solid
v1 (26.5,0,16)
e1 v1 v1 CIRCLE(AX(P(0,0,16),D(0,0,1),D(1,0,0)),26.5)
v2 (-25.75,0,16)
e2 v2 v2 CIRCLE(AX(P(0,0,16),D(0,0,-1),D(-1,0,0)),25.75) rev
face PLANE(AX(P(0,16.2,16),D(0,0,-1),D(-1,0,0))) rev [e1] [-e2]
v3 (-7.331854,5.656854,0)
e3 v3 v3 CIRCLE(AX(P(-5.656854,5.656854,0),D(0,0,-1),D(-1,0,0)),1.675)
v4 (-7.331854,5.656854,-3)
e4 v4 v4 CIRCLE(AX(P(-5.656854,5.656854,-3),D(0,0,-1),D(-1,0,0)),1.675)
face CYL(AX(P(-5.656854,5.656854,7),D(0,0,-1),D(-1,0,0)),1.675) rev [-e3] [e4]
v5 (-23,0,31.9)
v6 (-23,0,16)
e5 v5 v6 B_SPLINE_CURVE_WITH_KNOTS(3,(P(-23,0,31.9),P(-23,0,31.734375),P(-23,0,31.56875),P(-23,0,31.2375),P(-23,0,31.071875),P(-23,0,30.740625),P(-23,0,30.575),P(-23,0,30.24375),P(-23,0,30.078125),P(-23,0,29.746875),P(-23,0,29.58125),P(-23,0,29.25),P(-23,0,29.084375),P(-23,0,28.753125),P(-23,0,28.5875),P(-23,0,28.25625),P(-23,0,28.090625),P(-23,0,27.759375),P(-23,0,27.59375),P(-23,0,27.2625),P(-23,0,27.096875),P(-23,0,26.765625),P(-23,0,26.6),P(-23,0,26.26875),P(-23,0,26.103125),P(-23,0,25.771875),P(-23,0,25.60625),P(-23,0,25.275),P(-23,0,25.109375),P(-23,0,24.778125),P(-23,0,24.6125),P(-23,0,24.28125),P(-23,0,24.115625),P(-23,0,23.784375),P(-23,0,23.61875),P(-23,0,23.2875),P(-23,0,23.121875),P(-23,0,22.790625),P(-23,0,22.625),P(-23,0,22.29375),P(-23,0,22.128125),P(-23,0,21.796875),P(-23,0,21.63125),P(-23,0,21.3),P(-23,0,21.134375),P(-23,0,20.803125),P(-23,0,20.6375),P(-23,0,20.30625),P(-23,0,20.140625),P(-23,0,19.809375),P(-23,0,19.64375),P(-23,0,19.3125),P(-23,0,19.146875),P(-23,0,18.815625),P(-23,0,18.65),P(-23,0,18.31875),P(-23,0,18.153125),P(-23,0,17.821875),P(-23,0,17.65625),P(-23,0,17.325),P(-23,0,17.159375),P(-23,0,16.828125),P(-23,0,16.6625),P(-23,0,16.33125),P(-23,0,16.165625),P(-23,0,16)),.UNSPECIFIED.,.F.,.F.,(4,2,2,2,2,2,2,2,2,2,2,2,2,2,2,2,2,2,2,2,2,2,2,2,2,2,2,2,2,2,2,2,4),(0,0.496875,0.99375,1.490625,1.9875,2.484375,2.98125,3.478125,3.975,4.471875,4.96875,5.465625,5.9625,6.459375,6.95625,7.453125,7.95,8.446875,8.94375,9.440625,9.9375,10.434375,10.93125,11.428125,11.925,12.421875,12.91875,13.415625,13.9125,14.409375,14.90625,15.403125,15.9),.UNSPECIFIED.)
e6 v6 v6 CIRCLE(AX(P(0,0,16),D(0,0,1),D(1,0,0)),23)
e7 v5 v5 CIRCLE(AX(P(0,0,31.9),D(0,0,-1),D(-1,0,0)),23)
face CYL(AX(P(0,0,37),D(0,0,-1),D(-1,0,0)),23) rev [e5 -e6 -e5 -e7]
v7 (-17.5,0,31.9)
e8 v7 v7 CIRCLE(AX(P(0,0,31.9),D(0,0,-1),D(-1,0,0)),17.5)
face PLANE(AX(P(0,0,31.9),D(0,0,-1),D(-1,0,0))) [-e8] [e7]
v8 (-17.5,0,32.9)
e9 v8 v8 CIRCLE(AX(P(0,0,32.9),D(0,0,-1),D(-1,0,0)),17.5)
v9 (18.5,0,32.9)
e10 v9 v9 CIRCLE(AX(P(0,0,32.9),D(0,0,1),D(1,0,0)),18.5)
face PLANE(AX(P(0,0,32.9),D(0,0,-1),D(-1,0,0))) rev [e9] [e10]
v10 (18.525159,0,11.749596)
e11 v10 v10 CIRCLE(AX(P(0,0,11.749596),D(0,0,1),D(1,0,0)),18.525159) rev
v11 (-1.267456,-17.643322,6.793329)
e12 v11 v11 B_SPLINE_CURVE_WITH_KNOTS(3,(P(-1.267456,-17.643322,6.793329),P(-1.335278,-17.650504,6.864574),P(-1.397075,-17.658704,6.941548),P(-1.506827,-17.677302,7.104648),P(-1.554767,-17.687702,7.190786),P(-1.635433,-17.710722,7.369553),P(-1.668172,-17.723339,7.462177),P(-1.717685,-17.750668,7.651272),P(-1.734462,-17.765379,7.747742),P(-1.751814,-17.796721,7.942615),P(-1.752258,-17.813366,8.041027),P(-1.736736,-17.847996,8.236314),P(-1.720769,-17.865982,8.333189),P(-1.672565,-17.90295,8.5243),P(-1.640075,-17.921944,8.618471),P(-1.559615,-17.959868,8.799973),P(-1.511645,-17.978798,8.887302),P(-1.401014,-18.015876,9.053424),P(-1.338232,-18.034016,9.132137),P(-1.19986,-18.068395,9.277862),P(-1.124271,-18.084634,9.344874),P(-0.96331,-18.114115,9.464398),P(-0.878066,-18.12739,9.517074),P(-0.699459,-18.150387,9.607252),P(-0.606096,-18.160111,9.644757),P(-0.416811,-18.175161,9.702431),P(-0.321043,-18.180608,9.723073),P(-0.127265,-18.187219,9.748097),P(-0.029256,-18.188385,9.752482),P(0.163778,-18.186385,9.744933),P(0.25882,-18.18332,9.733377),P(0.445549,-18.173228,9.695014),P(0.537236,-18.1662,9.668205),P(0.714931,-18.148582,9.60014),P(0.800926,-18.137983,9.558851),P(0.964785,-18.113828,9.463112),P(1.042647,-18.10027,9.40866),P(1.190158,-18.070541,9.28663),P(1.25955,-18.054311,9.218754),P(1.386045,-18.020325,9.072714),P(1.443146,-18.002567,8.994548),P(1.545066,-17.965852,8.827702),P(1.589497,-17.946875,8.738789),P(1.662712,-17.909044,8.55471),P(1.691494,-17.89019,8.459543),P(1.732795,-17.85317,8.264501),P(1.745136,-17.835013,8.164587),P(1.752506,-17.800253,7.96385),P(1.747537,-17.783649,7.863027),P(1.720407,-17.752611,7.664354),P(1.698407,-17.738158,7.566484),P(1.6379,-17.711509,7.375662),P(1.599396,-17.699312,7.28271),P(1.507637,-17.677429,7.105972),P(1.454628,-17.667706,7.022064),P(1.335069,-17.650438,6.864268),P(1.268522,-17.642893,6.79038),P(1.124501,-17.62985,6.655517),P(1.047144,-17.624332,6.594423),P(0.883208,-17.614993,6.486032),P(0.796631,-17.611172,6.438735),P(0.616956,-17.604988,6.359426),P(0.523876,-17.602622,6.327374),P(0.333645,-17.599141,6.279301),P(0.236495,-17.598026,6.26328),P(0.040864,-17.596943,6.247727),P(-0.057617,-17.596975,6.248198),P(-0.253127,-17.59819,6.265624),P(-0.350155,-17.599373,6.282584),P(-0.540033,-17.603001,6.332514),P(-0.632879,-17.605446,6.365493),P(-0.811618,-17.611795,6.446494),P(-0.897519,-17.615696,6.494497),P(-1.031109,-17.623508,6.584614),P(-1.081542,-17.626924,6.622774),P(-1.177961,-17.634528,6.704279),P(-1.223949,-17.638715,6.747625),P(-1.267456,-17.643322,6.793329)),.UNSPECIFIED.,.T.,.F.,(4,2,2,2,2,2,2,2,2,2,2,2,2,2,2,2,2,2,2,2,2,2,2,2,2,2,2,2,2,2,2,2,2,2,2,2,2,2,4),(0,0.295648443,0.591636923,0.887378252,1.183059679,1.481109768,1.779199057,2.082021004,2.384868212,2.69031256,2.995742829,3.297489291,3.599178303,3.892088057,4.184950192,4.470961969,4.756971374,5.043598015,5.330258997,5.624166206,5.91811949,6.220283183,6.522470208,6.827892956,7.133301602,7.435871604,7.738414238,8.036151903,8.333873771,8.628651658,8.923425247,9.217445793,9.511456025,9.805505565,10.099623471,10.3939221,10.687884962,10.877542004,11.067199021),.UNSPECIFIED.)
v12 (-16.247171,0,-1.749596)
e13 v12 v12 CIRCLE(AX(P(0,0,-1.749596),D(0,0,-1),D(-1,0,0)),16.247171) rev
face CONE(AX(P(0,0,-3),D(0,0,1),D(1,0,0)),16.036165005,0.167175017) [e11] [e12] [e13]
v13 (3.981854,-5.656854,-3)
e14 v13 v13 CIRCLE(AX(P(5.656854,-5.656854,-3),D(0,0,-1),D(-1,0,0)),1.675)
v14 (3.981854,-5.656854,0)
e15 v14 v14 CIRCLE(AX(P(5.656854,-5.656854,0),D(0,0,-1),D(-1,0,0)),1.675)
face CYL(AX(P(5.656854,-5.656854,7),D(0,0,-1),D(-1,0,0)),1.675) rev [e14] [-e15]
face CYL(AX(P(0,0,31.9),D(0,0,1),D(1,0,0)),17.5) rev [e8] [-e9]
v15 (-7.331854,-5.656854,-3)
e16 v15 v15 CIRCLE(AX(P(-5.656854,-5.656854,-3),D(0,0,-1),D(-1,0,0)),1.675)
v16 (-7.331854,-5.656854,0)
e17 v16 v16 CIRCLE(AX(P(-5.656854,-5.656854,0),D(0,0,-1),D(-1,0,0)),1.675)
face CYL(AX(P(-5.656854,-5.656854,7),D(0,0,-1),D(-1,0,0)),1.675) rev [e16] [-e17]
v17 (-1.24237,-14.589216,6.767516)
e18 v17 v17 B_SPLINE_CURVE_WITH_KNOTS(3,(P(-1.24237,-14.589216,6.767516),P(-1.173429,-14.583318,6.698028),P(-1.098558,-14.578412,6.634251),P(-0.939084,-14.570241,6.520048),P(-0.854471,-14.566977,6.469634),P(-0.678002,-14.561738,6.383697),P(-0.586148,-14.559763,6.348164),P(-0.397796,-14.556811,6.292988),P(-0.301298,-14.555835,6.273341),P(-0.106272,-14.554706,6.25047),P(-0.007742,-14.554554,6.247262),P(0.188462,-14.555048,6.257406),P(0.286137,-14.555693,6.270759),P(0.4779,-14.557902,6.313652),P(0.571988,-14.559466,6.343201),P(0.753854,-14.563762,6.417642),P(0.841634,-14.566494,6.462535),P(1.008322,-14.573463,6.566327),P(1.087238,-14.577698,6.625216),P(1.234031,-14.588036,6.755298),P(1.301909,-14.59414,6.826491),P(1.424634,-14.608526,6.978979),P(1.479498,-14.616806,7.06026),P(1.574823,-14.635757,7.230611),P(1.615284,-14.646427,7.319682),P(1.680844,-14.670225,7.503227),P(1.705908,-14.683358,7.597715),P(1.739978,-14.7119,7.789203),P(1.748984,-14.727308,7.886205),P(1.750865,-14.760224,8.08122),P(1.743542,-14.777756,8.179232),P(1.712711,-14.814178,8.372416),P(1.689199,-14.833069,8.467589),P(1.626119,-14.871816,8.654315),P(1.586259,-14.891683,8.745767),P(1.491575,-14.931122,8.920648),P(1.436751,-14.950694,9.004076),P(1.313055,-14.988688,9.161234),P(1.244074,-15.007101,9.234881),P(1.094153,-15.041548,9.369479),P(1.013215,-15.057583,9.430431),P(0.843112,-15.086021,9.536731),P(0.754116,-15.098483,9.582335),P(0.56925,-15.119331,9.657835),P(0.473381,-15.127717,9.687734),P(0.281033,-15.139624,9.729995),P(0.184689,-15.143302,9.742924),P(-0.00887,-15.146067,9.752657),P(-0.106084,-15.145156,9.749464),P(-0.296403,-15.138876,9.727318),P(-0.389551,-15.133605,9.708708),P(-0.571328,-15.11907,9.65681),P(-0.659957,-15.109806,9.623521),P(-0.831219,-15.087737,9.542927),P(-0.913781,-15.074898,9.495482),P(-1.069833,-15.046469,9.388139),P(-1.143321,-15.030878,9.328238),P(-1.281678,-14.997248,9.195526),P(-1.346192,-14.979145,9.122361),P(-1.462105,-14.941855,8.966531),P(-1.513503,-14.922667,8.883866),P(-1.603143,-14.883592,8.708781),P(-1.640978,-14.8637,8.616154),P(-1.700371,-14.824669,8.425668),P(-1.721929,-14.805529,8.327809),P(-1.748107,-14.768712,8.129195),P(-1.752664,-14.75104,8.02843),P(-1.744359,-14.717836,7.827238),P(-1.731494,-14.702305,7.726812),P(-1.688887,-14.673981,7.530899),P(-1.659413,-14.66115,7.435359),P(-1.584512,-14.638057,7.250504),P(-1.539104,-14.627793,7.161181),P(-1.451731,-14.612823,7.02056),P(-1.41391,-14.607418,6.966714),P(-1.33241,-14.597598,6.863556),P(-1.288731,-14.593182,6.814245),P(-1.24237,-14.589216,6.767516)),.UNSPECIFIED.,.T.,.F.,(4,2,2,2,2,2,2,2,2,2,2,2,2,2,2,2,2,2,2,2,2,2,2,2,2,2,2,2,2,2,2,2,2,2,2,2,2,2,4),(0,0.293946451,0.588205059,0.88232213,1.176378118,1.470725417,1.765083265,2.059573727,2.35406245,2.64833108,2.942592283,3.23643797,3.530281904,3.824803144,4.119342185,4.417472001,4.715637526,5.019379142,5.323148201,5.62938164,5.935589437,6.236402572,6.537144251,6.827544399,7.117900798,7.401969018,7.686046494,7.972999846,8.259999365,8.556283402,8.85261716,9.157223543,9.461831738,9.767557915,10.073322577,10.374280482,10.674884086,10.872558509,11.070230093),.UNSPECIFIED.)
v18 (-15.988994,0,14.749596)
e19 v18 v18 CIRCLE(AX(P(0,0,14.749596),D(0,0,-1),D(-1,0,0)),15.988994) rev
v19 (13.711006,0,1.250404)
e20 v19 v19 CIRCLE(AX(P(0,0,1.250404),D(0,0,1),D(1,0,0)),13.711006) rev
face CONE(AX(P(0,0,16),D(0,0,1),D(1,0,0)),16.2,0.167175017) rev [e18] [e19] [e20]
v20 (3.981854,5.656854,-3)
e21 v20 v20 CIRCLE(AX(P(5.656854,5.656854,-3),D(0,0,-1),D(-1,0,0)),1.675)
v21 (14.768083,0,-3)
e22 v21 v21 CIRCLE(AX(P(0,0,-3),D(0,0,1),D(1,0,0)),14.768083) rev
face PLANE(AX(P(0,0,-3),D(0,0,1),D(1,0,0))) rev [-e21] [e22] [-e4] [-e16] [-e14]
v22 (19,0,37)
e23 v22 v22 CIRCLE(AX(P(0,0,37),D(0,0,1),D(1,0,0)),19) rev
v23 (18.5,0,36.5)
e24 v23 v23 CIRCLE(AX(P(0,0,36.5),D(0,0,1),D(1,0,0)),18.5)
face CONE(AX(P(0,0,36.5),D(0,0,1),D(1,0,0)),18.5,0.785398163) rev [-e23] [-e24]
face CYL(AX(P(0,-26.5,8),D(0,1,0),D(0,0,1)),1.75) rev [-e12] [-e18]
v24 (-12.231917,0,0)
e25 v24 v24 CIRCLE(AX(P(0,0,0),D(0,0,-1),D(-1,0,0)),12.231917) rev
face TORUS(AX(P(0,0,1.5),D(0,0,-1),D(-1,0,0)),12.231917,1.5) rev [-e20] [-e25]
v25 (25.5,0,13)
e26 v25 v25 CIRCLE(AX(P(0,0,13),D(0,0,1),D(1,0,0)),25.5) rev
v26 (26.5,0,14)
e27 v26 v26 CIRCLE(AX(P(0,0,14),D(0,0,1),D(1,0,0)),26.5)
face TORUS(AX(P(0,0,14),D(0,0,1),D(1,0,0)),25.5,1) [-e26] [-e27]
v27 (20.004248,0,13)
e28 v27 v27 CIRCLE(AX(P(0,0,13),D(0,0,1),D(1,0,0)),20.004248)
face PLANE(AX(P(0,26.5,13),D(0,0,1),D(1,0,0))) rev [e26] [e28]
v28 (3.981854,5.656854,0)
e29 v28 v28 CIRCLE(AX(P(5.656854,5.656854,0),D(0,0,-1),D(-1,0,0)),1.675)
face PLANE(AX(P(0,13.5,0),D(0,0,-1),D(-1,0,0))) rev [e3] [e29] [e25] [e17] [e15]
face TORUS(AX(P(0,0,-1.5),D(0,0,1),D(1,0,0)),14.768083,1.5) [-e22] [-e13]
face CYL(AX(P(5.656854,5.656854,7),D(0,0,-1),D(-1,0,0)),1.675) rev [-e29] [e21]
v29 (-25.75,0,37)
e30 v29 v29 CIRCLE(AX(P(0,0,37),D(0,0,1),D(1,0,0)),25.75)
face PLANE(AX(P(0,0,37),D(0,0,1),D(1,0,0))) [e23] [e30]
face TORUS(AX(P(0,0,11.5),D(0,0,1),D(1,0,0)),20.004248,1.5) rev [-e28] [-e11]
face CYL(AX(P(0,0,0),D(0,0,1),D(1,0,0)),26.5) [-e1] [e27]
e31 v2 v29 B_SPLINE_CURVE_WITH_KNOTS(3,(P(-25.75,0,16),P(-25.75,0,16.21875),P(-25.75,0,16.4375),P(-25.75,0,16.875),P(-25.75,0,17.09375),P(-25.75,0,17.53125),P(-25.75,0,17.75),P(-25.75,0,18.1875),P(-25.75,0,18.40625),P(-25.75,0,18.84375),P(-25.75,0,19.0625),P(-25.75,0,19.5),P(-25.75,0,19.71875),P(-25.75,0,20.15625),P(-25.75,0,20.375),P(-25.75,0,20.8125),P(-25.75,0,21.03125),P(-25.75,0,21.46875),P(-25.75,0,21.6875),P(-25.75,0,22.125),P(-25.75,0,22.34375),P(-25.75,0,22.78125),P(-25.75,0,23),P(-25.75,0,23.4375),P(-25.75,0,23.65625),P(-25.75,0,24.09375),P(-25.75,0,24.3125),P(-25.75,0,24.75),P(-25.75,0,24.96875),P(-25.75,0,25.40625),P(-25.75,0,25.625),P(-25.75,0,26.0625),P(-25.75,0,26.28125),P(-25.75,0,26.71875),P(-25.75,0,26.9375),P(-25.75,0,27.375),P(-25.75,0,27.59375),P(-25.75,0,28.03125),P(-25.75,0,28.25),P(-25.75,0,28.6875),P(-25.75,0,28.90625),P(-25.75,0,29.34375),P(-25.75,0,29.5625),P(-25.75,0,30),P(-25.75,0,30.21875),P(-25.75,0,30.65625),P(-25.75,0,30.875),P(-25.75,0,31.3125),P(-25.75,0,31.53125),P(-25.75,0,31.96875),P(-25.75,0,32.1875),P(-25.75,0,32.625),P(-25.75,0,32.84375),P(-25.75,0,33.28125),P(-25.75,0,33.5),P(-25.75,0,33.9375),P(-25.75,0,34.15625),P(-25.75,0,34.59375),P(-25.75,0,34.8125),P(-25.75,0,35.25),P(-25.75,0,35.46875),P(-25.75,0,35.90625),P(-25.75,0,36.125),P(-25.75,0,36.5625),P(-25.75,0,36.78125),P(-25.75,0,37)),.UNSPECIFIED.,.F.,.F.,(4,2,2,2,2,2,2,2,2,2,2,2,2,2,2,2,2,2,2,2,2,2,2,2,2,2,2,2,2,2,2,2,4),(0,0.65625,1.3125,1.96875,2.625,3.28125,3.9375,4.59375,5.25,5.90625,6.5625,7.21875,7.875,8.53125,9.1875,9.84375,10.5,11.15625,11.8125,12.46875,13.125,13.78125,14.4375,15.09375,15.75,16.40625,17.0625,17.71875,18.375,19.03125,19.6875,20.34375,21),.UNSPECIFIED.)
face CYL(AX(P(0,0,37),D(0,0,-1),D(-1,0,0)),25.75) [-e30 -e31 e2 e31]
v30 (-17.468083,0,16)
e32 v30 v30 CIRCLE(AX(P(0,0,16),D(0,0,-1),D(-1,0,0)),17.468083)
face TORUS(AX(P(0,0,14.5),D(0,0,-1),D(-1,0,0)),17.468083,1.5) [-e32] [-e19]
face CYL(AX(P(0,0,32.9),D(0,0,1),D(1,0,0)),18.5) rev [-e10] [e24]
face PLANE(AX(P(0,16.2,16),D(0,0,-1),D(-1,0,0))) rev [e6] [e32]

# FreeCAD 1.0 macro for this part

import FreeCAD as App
import Part
import Sketcher


def edges_at(feature, points):
    """Names of the edges that pass closest to the given points."""
    edges = feature.Shape.Edges
    near = lambda p: min(range(len(edges)), key=lambda i: edges[i].distToShape(Part.Vertex(*p))[0])
    return sorted({f"Edge{near(p) + 1}" for p in points})


def add_polygon(sketch, points):
    """Adds a closed chain of lines whose ends are joined by coincident constraints."""
    first, n = sketch.GeometryCount, len(points)
    for a, b in zip(points, points[1:] + points[:1]):
        sketch.addGeometry(Part.LineSegment(App.Vector(*a, 0), App.Vector(*b, 0)), False)
    for i in range(n):
        sketch.addConstraint(Sketcher.Constraint("Coincident", first + i, 2, first + (i + 1) % n, 1))

doc = App.newDocument("Part")
params = doc.addObject("Spreadsheet::Sheet", "Params")
for row, (alias, value) in enumerate([
    ("sketch1_height", "3 mm"),
    ("sketch1_width", "10.3 mm"),
    ("sketch1_width2", "13.5 mm"),
    ("revolution_angle", "360 deg"),
    ("sketch2_diameter", "3.35 mm"),
    ("pocket1_length", "10 mm"),
    ("sketch3_diameter", "3.5 mm"),
    ("fillet_radius", "1.5 mm"),
    ("sketch4_diameter", "46 mm"),
    ("sketch4_diameter2", "51.5 mm"),
    ("pad1_length", "21 mm"),
    ("sketch5_diameter", "37 mm"),
    ("sketch5_diameter2", "51.5 mm"),
    ("pad2_length", "4.1 mm"),
    ("sketch6_diameter", "35 mm"),
    ("sketch6_diameter2", "51.5 mm"),
    ("pad3_length", "1 mm"),
    ("fillet2_radius", "1 mm"),
    ("chamfer_size", "0.5 mm"),
], start=1):
    params.set(f"A{row}", alias)
    params.set(f"B{row}", "=" + value)
    params.setAlias(f"B{row}", alias)

body = doc.addObject("PartDesign::Body", "Body")

# Sketch on YZ plane
sketch1 = body.newObject("Sketcher::SketchObject", "Sketch")
sketch1.AttachmentSupport = (doc.getObject("YZ_Plane"), [""])
sketch1.MapMode = "FlatFace"
add_polygon(sketch1, [(0, 0), (0, -3), (16.036165, -3), (18.736165, 13), (26.5, 13), (26.5, 16), (16.2, 16), (13.5, 0)])  # lines 0-7
sketch1.addConstraint([
    Sketcher.Constraint("Vertical", 0),
    Sketcher.Constraint("Horizontal", 1),
    Sketcher.Constraint("Horizontal", 3),
    Sketcher.Constraint("Vertical", 4),
    Sketcher.Constraint("Horizontal", 5),
    Sketcher.Constraint("Horizontal", 7),
    Sketcher.Constraint("Coincident", 7, 2, -1, 1),
    Sketcher.Constraint("Parallel", 2, 6),
    Sketcher.Constraint("Equal", 0, 4),
    Sketcher.Constraint("DistanceY", 0, 2, 0, 1, 3.0),
    Sketcher.Constraint("DistanceX", 5, 2, 5, 1, 10.3),
    Sketcher.Constraint("DistanceX", 7, 2, 7, 1, 13.5),
    Sketcher.Constraint("DistanceY", -1, 1, 2, 2, 13.0),
    Sketcher.Constraint("DistanceX", 6, 2, 3, 2, 13.0),
    Sketcher.Constraint("DistanceX", 1, 1, 1, 2, 16.036165),
])
sketch1.setExpression("Constraints[17]", "Params.sketch1_height")
sketch1.setExpression("Constraints[18]", "Params.sketch1_width")
sketch1.setExpression("Constraints[19]", "Params.sketch1_width2")
revolution = body.newObject("PartDesign::Revolution", "Revolution")
revolution.Profile = sketch1
revolution.ReferenceAxis = (sketch1, ["V_Axis"])
revolution.setExpression("Angle", "Params.revolution_angle")

# Sketch on XY plane
sketch2 = body.newObject("Sketcher::SketchObject", "Sketch001")
sketch2.AttachmentSupport = (doc.getObject("XY_Plane"), [""])
sketch2.MapMode = "FlatFace"
sketch2.AttachmentOffset = App.Placement(App.Vector(0, 0, -3), App.Rotation())
sketch2.addGeometry([
    Part.Circle(App.Vector(-5.656854, 5.656854, 0), App.Vector(0, 0, 1), 1.675),
    Part.Circle(App.Vector(-5.656854, -5.656854, 0), App.Vector(0, 0, 1), 1.675),
    Part.Circle(App.Vector(5.656854, 5.656854, 0), App.Vector(0, 0, 1), 1.675),
    Part.Circle(App.Vector(5.656854, -5.656854, 0), App.Vector(0, 0, 1), 1.675),
], False)
sketch2.addConstraint([
    Sketcher.Constraint("Equal", 0, 1),
    Sketcher.Constraint("Equal", 1, 2),
    Sketcher.Constraint("Equal", 2, 3),
    Sketcher.Constraint("Symmetric", 1, 3, 2, 3, -1, 1),
    Sketcher.Constraint("Symmetric", 0, 3, 3, 3, -1, 1),
    Sketcher.Constraint("Symmetric", 0, 3, 2, 3, -2),
    Sketcher.Constraint("Diameter", 0, 3.35),
    Sketcher.Constraint("DistanceY", 1, 3, 0, 3, 11.313708),
    Sketcher.Constraint("DistanceX", 0, 3, 2, 3, 11.313708),
])
sketch2.setExpression("Constraints[6]", "Params.sketch2_diameter")
pocket1 = body.newObject("PartDesign::Pocket", "Pocket")
pocket1.Profile = sketch2
pocket1.setExpression("Length", "Params.pocket1_length")
pocket1.Reversed = True

# Sketch on XZ plane
sketch3 = body.newObject("Sketcher::SketchObject", "Sketch002")
sketch3.AttachmentSupport = (doc.getObject("XZ_Plane"), [""])
sketch3.MapMode = "FlatFace"
sketch3.addGeometry(Part.Circle(App.Vector(0, 8, 0), App.Vector(0, 0, 1), 1.75), False)
sketch3.addConstraint([
    Sketcher.Constraint("PointOnObject", 0, 3, -2),
    Sketcher.Constraint("Diameter", 0, 3.5),
    Sketcher.Constraint("DistanceY", -1, 1, 0, 3, 8.0),
])
sketch3.setExpression("Constraints[1]", "Params.sketch3_diameter")
pocket2 = body.newObject("PartDesign::Pocket", "Pocket001")
pocket2.Profile = sketch3
pocket2.Type = "ThroughAll"
pocket2.Reversed = True
doc.recompute()

fillet = body.newObject("PartDesign::Fillet", "Fillet")
fillet.Base = (pocket2, edges_at(pocket2, [
    (-13.5, 0, 0),
    (-16.2, 0, 16),
    (-18.736, 0, 13),
    (-16.036, 0, -3),
]))
fillet.setExpression("Radius", "Params.fillet_radius")

# Sketch on XY plane
sketch4 = body.newObject("Sketcher::SketchObject", "Sketch003")
sketch4.AttachmentSupport = (doc.getObject("XY_Plane"), [""])
sketch4.MapMode = "FlatFace"
sketch4.AttachmentOffset = App.Placement(App.Vector(0, 0, 16), App.Rotation())
sketch4.addGeometry([
    Part.Circle(App.Vector(0, 0, 0), App.Vector(0, 0, 1), 25.75),
    Part.Circle(App.Vector(0, 0, 0), App.Vector(0, 0, 1), 23),
], False)
sketch4.addConstraint([
    Sketcher.Constraint("Coincident", 0, 3, -1, 1),
    Sketcher.Constraint("Coincident", 1, 3, -1, 1),
    Sketcher.Constraint("Diameter", 1, 46.0),
    Sketcher.Constraint("Diameter", 0, 51.5),
])
sketch4.setExpression("Constraints[2]", "Params.sketch4_diameter")
sketch4.setExpression("Constraints[3]", "Params.sketch4_diameter2")
pad1 = body.newObject("PartDesign::Pad", "Pad")
pad1.Profile = sketch4
pad1.setExpression("Length", "Params.pad1_length")

# Sketch on XY plane
sketch5 = body.newObject("Sketcher::SketchObject", "Sketch004")
sketch5.AttachmentSupport = (doc.getObject("XY_Plane"), [""])
sketch5.MapMode = "FlatFace"
sketch5.AttachmentOffset = App.Placement(App.Vector(0, 0, 32.9), App.Rotation())
sketch5.addGeometry([
    Part.Circle(App.Vector(0, 0, 0), App.Vector(0, 0, 1), 25.75),
    Part.Circle(App.Vector(0, 0, 0), App.Vector(0, 0, 1), 18.5),
], False)
sketch5.addConstraint([
    Sketcher.Constraint("Coincident", 0, 3, -1, 1),
    Sketcher.Constraint("Coincident", 1, 3, -1, 1),
    Sketcher.Constraint("Diameter", 1, 37.0),
    Sketcher.Constraint("Diameter", 0, 51.5),
])
sketch5.setExpression("Constraints[2]", "Params.sketch5_diameter")
sketch5.setExpression("Constraints[3]", "Params.sketch5_diameter2")
pad2 = body.newObject("PartDesign::Pad", "Pad001")
pad2.Profile = sketch5
pad2.setExpression("Length", "Params.pad2_length")

# Sketch on XY plane
sketch6 = body.newObject("Sketcher::SketchObject", "Sketch005")
sketch6.AttachmentSupport = (doc.getObject("XY_Plane"), [""])
sketch6.MapMode = "FlatFace"
sketch6.AttachmentOffset = App.Placement(App.Vector(0, 0, 31.9), App.Rotation())
sketch6.addGeometry([
    Part.Circle(App.Vector(0, 0, 0), App.Vector(0, 0, 1), 25.75),
    Part.Circle(App.Vector(0, 0, 0), App.Vector(0, 0, 1), 17.5),
], False)
sketch6.addConstraint([
    Sketcher.Constraint("Coincident", 0, 3, -1, 1),
    Sketcher.Constraint("Coincident", 1, 3, -1, 1),
    Sketcher.Constraint("Diameter", 1, 35.0),
    Sketcher.Constraint("Diameter", 0, 51.5),
])
sketch6.setExpression("Constraints[2]", "Params.sketch6_diameter")
sketch6.setExpression("Constraints[3]", "Params.sketch6_diameter2")
pad3 = body.newObject("PartDesign::Pad", "Pad002")
pad3.Profile = sketch6
pad3.setExpression("Length", "Params.pad3_length")
doc.recompute()

fillet2 = body.newObject("PartDesign::Fillet", "Fillet001")
fillet2.Base = (pad3, edges_at(pad3, [(-26.5, 0, 13)]))
fillet2.setExpression("Radius", "Params.fillet2_radius")
doc.recompute()

chamfer = body.newObject("PartDesign::Chamfer", "Chamfer")
chamfer.Base = (fillet2, edges_at(fillet2, [(-18.5, 0, 37)]))
chamfer.setExpression("Size", "Params.chamfer_size")

doc.recompute()
